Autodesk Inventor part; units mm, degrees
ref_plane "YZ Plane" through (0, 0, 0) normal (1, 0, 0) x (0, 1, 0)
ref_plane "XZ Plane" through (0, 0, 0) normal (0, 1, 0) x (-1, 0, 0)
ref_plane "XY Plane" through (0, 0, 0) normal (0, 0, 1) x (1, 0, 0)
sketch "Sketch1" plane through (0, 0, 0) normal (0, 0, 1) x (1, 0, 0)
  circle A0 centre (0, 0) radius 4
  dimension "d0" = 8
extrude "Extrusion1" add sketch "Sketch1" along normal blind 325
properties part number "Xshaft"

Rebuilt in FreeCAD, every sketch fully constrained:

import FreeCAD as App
import Part
import Sketcher

V = App.Vector

doc = App.newDocument("Part")
body = doc.addObject("PartDesign::Body", "Body")

# Sketch on XY plane
sketch1 = body.newObject("Sketcher::SketchObject", "Sketch")
sketch1.AttachmentSupport = (doc.getObject("XY_Plane"), [""])
sketch1.MapMode = "FlatFace"
sketch1.addGeometry(Part.Circle(V(0, 0, 0), V(0, 0, 1), 4), False)
sketch1.addConstraint([
    Sketcher.Constraint("Coincident", 0, 3, -1, 1),
    Sketcher.Constraint("Diameter", 0, 8.0),
])
pad1 = body.newObject("PartDesign::Pad", "Pad")
pad1.Profile = sketch1
pad1.Length = 325

doc.recompute()
